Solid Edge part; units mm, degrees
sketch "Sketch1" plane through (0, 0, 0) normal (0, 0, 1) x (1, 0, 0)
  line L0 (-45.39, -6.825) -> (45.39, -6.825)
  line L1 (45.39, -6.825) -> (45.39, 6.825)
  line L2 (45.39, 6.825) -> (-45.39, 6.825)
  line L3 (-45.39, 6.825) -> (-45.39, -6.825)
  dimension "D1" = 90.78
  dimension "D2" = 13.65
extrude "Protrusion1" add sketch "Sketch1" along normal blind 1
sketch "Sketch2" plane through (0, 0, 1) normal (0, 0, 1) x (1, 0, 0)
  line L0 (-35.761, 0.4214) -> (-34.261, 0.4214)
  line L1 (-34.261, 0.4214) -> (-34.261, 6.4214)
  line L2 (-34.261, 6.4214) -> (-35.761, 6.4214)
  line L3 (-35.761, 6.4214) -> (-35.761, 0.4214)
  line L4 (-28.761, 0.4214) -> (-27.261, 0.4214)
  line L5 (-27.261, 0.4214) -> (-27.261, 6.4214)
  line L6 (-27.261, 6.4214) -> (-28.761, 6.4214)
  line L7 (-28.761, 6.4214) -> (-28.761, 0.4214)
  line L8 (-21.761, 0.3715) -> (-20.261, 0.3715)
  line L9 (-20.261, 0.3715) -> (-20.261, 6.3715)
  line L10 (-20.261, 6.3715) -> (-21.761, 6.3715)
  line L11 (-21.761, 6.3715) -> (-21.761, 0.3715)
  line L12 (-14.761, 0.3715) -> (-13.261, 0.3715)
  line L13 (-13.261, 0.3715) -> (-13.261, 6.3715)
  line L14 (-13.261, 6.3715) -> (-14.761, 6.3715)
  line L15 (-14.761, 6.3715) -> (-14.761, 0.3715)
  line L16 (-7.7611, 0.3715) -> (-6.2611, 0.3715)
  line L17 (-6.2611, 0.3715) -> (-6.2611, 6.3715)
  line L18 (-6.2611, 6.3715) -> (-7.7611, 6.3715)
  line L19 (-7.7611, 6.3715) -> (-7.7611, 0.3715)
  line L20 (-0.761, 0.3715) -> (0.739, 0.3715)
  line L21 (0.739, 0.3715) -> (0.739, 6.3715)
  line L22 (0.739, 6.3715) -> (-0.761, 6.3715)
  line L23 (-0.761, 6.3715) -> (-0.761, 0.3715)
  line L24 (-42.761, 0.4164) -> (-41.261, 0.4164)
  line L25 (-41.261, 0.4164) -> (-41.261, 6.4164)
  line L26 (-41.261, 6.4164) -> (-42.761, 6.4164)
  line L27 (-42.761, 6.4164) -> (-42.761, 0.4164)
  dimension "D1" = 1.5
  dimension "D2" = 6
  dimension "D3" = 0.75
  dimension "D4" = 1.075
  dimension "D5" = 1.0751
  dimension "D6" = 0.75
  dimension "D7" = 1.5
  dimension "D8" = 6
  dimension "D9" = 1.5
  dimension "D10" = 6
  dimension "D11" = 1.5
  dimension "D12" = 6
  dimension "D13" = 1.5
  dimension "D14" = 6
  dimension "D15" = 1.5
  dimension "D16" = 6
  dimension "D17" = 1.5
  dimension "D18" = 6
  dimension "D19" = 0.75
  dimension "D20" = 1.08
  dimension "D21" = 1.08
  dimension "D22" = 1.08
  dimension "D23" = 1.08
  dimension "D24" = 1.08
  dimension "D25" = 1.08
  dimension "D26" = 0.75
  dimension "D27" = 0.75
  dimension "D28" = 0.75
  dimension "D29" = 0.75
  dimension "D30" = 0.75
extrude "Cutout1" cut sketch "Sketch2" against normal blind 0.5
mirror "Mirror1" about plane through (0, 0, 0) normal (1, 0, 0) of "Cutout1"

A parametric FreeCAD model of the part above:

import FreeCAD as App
import Part
import Sketcher
Q = App.Units.Quantity


def add_polygon(sketch, points):
    """Adds a closed chain of lines whose ends are joined by coincident constraints."""
    first, n = sketch.GeometryCount, len(points)
    for a, b in zip(points, points[1:] + points[:1]):
        sketch.addGeometry(Part.LineSegment(App.Vector(*a, 0), App.Vector(*b, 0)), False)
    for i in range(n):
        sketch.addConstraint(Sketcher.Constraint("Coincident", first + i, 2, first + (i + 1) % n, 1))

doc = App.newDocument("Part")
params = doc.addObject("Spreadsheet::Sheet", "Params")
for row, (alias, value) in enumerate([
    ("sketch1_height", "13.65 mm"),
    ("pad1_length", "1 mm"),
    ("sketch2_height", "6 mm"),
    ("sketch2_width", "1.5 mm"),
    ("pocket1_length", "0.5 mm"),
], start=1):
    params.set(f"A{row}", alias)
    params.set(f"B{row}", "=" + value)
    params.setAlias(f"B{row}", alias)

body = doc.addObject("PartDesign::Body", "Body")

sketch1 = body.newObject("Sketcher::SketchObject", "Sketch")
sketch1.AttachmentSupport = (doc.getObject("XY_Plane"), [""])
sketch1.MapMode = "FlatFace"
add_polygon(sketch1, [(-45.39, 6.825), (-45.39, -6.825), (45.39, -6.825), (45.39, 6.825)])
sketch1.addConstraint([
    Sketcher.Constraint("Vertical", 0),
    Sketcher.Constraint("Horizontal", 1),
    Sketcher.Constraint("Vertical", 2),
    Sketcher.Constraint("Horizontal", 3),
    Sketcher.Constraint("Symmetric", 0, 2, 2, 2, -1, 1),
    Sketcher.Constraint("DistanceX", 0, 2, -1, 1, Q("45.39 mm")),
    Sketcher.Constraint("DistanceY", 0, 2, 0, 1, Q("13.65 mm")),
])
sketch1.setExpression("Constraints[10]", "Params.sketch1_height")
pad1 = body.newObject("PartDesign::Pad", "Pad")
pad1.Profile = sketch1
pad1.setExpression("Length", "Params.pad1_length")

sketch2 = body.newObject("Sketcher::SketchObject", "Sketch001")
sketch2.AttachmentSupport = (doc.getObject("XY_Plane"), [""])
sketch2.MapMode = "FlatFace"
sketch2.AttachmentOffset = App.Placement(App.Vector(0, 0, 1), App.Rotation())
add_polygon(sketch2, [(-35.761, 6.4214), (-35.761, 0.4214), (-34.261, 0.4214), (-34.261, 6.4214)])
add_polygon(sketch2, [(-28.761, 6.4214), (-28.761, 0.4214), (-27.261, 0.4214), (-27.261, 6.4214)])
add_polygon(sketch2, [(-21.761, 6.3715), (-21.761, 0.3715), (-20.261, 0.3715), (-20.261, 6.3715)])
add_polygon(sketch2, [(-14.761, 6.3715), (-14.761, 0.3715), (-13.261, 0.3715), (-13.261, 6.3715)])
add_polygon(sketch2, [(-7.7611, 6.3715), (-7.7611, 0.3715), (-6.2611, 0.3715), (-6.2611, 6.3715)])
add_polygon(sketch2, [(-0.761, 6.3715), (-0.761, 0.3715), (0.739, 0.3715), (0.739, 6.3715)])
add_polygon(sketch2, [(-42.761, 6.4164), (-42.761, 0.4164), (-41.261, 0.4164), (-41.261, 6.4164)])
sketch2.addConstraint([
    Sketcher.Constraint("Vertical", 0),
    Sketcher.Constraint("Horizontal", 1),
    Sketcher.Constraint("Vertical", 2),
    Sketcher.Constraint("Horizontal", 3),
    Sketcher.Constraint("Vertical", 4),
    Sketcher.Constraint("Horizontal", 5),
    Sketcher.Constraint("Vertical", 6),
    Sketcher.Constraint("Horizontal", 7),
    Sketcher.Constraint("Vertical", 8),
    Sketcher.Constraint("Horizontal", 9),
    Sketcher.Constraint("Vertical", 10),
    Sketcher.Constraint("Horizontal", 11),
    Sketcher.Constraint("Vertical", 12),
    Sketcher.Constraint("Horizontal", 13),
    Sketcher.Constraint("Vertical", 14),
    Sketcher.Constraint("Horizontal", 15),
    Sketcher.Constraint("Vertical", 16),
    Sketcher.Constraint("Horizontal", 17),
    Sketcher.Constraint("Vertical", 18),
    Sketcher.Constraint("Horizontal", 19),
    Sketcher.Constraint("Vertical", 20),
    Sketcher.Constraint("Horizontal", 21),
    Sketcher.Constraint("Vertical", 22),
    Sketcher.Constraint("Horizontal", 23),
    Sketcher.Constraint("Vertical", 24),
    Sketcher.Constraint("Horizontal", 25),
    Sketcher.Constraint("Vertical", 26),
    Sketcher.Constraint("Horizontal", 27),
    Sketcher.Constraint("Horizontal", 1, 2, 4, 2),
    Sketcher.Constraint("Horizontal", 3, 2, 6, 2),
    Sketcher.Constraint("Horizontal", 9, 2, 12, 2),
    Sketcher.Constraint("Horizontal", 11, 2, 14, 2),
    Sketcher.Constraint("Horizontal", 13, 2, 16, 2),
    Sketcher.Constraint("Horizontal", 15, 2, 18, 2),
    Sketcher.Constraint("Horizontal", 17, 2, 20, 2),
    Sketcher.Constraint("Horizontal", 19, 2, 22, 2),
    Sketcher.Constraint("Equal", 3, 5),
    Sketcher.Constraint("Equal", 7, 9),
    Sketcher.Constraint("Equal", 11, 13),
    Sketcher.Constraint("Equal", 15, 17),
    Sketcher.Constraint("Equal", 19, 21),
    Sketcher.Constraint("Equal", 23, 25),
    Sketcher.Constraint("Equal", 6, 8),
    Sketcher.Constraint("Equal", 22, 24),
    Sketcher.Constraint("DistanceY", 0, 2, 0, 1, Q("6 mm")),
    Sketcher.Constraint("DistanceX", 1, 1, 1, 2, Q("1.5 mm")),
    Sketcher.Constraint("DistanceX", 1, 2, -1, 1, Q("34.261 mm")),
    Sketcher.Constraint("DistanceX", 5, 2, -1, 1, Q("27.261 mm")),
    Sketcher.Constraint("DistanceX", 9, 2, -1, 1, Q("20.261 mm")),
    Sketcher.Constraint("DistanceX", 13, 2, -1, 1, Q("13.261 mm")),
    Sketcher.Constraint("DistanceX", 17, 2, -1, 1, Q("6.261 mm")),
    Sketcher.Constraint("DistanceX", -1, 1, 21, 2, Q("0.739 mm")),
    Sketcher.Constraint("DistanceX", 25, 2, -1, 1, Q("41.261 mm")),
    Sketcher.Constraint("DistanceY", 8, 2, 5, 2, Q("0.05 mm")),
    Sketcher.Constraint("DistanceY", 24, 2, 0, 2, Q("0.005 mm")),
    Sketcher.Constraint("DistanceY", -1, 1, 0, 2, Q("0.4214 mm")),
])
sketch2.setExpression("Constraints[72]", "Params.sketch2_height")
sketch2.setExpression("Constraints[73]", "Params.sketch2_width")
pocket1 = body.newObject("PartDesign::Pocket", "Pocket")
pocket1.Profile = sketch2
pocket1.setExpression("Length", "Params.pocket1_length")
doc.recompute()

mirrored = body.newObject("PartDesign::Mirrored", "Mirrored")
mirrored.Originals = [pocket1]
mirrored.MirrorPlane = (doc.getObject("YZ_Plane"), [""])
body.Tip = mirrored

doc.recompute()
